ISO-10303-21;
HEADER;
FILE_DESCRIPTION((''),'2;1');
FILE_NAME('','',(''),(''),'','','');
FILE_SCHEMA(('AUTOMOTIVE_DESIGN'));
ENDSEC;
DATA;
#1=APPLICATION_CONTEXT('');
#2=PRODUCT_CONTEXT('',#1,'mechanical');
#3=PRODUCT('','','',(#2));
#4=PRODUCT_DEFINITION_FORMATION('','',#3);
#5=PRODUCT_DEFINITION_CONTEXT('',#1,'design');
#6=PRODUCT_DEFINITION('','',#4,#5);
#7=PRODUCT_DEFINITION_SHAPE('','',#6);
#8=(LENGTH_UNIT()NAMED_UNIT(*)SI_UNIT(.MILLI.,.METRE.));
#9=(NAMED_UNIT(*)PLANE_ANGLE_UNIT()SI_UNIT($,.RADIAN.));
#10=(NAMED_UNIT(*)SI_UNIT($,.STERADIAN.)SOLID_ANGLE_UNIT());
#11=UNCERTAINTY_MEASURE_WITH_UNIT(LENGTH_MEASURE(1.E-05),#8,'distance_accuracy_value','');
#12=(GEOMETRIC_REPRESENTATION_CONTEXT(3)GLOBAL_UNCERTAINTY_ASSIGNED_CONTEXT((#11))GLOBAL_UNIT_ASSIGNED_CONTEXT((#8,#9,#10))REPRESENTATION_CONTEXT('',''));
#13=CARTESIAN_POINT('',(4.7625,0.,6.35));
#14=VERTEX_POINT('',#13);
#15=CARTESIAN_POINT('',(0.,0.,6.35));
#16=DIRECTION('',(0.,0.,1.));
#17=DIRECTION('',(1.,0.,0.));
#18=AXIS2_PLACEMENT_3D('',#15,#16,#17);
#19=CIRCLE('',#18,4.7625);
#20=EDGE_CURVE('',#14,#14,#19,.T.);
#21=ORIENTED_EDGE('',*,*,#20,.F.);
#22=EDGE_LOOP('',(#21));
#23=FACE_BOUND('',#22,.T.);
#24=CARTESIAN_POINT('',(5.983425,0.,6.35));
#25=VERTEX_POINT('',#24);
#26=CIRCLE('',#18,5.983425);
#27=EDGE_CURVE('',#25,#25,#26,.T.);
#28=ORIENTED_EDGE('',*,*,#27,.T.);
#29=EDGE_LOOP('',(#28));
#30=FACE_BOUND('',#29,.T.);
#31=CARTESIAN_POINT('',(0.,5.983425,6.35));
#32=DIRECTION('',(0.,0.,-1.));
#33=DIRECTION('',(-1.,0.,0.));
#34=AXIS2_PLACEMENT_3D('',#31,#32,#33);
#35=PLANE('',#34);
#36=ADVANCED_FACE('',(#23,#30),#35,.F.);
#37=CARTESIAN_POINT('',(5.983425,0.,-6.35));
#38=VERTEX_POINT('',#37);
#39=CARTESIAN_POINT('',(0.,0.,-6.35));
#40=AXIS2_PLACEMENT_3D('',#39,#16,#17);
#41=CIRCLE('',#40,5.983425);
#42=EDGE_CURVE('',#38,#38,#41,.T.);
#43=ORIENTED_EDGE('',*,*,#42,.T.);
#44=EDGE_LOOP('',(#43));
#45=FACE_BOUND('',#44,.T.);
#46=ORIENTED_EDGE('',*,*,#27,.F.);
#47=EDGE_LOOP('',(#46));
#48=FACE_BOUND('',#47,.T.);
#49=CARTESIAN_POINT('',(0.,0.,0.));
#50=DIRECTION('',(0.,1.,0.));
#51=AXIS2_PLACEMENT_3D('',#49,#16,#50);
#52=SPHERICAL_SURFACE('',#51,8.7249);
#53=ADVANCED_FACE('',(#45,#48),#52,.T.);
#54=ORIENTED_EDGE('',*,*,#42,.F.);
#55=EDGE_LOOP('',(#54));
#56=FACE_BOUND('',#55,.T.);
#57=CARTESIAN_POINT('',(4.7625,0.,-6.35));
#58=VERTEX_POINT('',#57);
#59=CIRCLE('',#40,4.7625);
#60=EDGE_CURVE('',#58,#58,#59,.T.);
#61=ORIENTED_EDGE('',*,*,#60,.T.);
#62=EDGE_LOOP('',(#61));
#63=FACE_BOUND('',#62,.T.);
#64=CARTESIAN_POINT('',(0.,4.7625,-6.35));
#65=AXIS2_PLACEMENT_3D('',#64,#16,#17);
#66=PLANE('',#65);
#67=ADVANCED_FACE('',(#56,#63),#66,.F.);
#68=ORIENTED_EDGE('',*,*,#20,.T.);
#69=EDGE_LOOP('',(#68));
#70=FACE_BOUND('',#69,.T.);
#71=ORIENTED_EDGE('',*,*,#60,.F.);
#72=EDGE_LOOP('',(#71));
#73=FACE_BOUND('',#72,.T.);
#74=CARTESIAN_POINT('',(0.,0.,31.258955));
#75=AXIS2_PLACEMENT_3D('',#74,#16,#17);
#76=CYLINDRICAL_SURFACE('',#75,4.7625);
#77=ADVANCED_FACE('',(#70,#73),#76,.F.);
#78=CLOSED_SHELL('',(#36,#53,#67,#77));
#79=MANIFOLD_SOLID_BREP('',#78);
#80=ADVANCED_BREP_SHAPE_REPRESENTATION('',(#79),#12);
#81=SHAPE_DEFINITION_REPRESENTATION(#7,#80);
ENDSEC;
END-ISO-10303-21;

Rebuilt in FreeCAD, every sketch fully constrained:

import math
import FreeCAD as App
import Part
import Sketcher
from FreeCAD import Vector
Q = App.Units.Quantity

doc = App.newDocument("Part")
body = doc.addObject("PartDesign::Body", "Body")

sketch1 = body.newObject("Sketcher::SketchObject", "Sketch")
sketch1.AttachmentSupport = (doc.getObject("YZ_Plane"), [""])
sketch1.MapMode = "FlatFace"
sketch1.addGeometry([
    Part.LineSegment(Vector(6, 6.3, 0), Vector(4.8, 6.3, 0)),
    Part.LineSegment(Vector(4.8, 6.3, 0), Vector(4.8, -6.3, 0)),
    Part.LineSegment(Vector(4.8, -6.3, 0), Vector(6, -6.3, 0)),
    Part.ArcOfCircle(Part.Circle(Vector(0, 0, 0), Vector(0, 0, 1), 8.7), math.radians(-47), math.radians(47)),
], False)
sketch1.addConstraint([
    Sketcher.Constraint("Coincident", 0, 2, 1, 1),
    Sketcher.Constraint("Coincident", 1, 2, 2, 1),
    Sketcher.Constraint("Coincident", 2, 2, 3, 1),
    Sketcher.Constraint("Coincident", 3, 2, 0, 1),
    Sketcher.Constraint("Horizontal", 0),
    Sketcher.Constraint("Vertical", 1),
    Sketcher.Constraint("Horizontal", 2),
    Sketcher.Constraint("Coincident", 3, 3, -1, 1),
    Sketcher.Constraint("Vertical", 2, 2, 3, 2),
    Sketcher.Constraint("DistanceY", 1, 2, 1, 1, Q("0.5 in")),
    Sketcher.Constraint("Radius", 3, Q("0.3435 in")),
    Sketcher.Constraint("DistanceX", -1, 1, 0, 2, Q("0.1875 in")),
])
revolution = body.newObject("PartDesign::Revolution", "Revolution")
revolution.Profile = sketch1
revolution.ReferenceAxis = (sketch1, ["V_Axis"])
revolution.Angle = 360

doc.recompute()
